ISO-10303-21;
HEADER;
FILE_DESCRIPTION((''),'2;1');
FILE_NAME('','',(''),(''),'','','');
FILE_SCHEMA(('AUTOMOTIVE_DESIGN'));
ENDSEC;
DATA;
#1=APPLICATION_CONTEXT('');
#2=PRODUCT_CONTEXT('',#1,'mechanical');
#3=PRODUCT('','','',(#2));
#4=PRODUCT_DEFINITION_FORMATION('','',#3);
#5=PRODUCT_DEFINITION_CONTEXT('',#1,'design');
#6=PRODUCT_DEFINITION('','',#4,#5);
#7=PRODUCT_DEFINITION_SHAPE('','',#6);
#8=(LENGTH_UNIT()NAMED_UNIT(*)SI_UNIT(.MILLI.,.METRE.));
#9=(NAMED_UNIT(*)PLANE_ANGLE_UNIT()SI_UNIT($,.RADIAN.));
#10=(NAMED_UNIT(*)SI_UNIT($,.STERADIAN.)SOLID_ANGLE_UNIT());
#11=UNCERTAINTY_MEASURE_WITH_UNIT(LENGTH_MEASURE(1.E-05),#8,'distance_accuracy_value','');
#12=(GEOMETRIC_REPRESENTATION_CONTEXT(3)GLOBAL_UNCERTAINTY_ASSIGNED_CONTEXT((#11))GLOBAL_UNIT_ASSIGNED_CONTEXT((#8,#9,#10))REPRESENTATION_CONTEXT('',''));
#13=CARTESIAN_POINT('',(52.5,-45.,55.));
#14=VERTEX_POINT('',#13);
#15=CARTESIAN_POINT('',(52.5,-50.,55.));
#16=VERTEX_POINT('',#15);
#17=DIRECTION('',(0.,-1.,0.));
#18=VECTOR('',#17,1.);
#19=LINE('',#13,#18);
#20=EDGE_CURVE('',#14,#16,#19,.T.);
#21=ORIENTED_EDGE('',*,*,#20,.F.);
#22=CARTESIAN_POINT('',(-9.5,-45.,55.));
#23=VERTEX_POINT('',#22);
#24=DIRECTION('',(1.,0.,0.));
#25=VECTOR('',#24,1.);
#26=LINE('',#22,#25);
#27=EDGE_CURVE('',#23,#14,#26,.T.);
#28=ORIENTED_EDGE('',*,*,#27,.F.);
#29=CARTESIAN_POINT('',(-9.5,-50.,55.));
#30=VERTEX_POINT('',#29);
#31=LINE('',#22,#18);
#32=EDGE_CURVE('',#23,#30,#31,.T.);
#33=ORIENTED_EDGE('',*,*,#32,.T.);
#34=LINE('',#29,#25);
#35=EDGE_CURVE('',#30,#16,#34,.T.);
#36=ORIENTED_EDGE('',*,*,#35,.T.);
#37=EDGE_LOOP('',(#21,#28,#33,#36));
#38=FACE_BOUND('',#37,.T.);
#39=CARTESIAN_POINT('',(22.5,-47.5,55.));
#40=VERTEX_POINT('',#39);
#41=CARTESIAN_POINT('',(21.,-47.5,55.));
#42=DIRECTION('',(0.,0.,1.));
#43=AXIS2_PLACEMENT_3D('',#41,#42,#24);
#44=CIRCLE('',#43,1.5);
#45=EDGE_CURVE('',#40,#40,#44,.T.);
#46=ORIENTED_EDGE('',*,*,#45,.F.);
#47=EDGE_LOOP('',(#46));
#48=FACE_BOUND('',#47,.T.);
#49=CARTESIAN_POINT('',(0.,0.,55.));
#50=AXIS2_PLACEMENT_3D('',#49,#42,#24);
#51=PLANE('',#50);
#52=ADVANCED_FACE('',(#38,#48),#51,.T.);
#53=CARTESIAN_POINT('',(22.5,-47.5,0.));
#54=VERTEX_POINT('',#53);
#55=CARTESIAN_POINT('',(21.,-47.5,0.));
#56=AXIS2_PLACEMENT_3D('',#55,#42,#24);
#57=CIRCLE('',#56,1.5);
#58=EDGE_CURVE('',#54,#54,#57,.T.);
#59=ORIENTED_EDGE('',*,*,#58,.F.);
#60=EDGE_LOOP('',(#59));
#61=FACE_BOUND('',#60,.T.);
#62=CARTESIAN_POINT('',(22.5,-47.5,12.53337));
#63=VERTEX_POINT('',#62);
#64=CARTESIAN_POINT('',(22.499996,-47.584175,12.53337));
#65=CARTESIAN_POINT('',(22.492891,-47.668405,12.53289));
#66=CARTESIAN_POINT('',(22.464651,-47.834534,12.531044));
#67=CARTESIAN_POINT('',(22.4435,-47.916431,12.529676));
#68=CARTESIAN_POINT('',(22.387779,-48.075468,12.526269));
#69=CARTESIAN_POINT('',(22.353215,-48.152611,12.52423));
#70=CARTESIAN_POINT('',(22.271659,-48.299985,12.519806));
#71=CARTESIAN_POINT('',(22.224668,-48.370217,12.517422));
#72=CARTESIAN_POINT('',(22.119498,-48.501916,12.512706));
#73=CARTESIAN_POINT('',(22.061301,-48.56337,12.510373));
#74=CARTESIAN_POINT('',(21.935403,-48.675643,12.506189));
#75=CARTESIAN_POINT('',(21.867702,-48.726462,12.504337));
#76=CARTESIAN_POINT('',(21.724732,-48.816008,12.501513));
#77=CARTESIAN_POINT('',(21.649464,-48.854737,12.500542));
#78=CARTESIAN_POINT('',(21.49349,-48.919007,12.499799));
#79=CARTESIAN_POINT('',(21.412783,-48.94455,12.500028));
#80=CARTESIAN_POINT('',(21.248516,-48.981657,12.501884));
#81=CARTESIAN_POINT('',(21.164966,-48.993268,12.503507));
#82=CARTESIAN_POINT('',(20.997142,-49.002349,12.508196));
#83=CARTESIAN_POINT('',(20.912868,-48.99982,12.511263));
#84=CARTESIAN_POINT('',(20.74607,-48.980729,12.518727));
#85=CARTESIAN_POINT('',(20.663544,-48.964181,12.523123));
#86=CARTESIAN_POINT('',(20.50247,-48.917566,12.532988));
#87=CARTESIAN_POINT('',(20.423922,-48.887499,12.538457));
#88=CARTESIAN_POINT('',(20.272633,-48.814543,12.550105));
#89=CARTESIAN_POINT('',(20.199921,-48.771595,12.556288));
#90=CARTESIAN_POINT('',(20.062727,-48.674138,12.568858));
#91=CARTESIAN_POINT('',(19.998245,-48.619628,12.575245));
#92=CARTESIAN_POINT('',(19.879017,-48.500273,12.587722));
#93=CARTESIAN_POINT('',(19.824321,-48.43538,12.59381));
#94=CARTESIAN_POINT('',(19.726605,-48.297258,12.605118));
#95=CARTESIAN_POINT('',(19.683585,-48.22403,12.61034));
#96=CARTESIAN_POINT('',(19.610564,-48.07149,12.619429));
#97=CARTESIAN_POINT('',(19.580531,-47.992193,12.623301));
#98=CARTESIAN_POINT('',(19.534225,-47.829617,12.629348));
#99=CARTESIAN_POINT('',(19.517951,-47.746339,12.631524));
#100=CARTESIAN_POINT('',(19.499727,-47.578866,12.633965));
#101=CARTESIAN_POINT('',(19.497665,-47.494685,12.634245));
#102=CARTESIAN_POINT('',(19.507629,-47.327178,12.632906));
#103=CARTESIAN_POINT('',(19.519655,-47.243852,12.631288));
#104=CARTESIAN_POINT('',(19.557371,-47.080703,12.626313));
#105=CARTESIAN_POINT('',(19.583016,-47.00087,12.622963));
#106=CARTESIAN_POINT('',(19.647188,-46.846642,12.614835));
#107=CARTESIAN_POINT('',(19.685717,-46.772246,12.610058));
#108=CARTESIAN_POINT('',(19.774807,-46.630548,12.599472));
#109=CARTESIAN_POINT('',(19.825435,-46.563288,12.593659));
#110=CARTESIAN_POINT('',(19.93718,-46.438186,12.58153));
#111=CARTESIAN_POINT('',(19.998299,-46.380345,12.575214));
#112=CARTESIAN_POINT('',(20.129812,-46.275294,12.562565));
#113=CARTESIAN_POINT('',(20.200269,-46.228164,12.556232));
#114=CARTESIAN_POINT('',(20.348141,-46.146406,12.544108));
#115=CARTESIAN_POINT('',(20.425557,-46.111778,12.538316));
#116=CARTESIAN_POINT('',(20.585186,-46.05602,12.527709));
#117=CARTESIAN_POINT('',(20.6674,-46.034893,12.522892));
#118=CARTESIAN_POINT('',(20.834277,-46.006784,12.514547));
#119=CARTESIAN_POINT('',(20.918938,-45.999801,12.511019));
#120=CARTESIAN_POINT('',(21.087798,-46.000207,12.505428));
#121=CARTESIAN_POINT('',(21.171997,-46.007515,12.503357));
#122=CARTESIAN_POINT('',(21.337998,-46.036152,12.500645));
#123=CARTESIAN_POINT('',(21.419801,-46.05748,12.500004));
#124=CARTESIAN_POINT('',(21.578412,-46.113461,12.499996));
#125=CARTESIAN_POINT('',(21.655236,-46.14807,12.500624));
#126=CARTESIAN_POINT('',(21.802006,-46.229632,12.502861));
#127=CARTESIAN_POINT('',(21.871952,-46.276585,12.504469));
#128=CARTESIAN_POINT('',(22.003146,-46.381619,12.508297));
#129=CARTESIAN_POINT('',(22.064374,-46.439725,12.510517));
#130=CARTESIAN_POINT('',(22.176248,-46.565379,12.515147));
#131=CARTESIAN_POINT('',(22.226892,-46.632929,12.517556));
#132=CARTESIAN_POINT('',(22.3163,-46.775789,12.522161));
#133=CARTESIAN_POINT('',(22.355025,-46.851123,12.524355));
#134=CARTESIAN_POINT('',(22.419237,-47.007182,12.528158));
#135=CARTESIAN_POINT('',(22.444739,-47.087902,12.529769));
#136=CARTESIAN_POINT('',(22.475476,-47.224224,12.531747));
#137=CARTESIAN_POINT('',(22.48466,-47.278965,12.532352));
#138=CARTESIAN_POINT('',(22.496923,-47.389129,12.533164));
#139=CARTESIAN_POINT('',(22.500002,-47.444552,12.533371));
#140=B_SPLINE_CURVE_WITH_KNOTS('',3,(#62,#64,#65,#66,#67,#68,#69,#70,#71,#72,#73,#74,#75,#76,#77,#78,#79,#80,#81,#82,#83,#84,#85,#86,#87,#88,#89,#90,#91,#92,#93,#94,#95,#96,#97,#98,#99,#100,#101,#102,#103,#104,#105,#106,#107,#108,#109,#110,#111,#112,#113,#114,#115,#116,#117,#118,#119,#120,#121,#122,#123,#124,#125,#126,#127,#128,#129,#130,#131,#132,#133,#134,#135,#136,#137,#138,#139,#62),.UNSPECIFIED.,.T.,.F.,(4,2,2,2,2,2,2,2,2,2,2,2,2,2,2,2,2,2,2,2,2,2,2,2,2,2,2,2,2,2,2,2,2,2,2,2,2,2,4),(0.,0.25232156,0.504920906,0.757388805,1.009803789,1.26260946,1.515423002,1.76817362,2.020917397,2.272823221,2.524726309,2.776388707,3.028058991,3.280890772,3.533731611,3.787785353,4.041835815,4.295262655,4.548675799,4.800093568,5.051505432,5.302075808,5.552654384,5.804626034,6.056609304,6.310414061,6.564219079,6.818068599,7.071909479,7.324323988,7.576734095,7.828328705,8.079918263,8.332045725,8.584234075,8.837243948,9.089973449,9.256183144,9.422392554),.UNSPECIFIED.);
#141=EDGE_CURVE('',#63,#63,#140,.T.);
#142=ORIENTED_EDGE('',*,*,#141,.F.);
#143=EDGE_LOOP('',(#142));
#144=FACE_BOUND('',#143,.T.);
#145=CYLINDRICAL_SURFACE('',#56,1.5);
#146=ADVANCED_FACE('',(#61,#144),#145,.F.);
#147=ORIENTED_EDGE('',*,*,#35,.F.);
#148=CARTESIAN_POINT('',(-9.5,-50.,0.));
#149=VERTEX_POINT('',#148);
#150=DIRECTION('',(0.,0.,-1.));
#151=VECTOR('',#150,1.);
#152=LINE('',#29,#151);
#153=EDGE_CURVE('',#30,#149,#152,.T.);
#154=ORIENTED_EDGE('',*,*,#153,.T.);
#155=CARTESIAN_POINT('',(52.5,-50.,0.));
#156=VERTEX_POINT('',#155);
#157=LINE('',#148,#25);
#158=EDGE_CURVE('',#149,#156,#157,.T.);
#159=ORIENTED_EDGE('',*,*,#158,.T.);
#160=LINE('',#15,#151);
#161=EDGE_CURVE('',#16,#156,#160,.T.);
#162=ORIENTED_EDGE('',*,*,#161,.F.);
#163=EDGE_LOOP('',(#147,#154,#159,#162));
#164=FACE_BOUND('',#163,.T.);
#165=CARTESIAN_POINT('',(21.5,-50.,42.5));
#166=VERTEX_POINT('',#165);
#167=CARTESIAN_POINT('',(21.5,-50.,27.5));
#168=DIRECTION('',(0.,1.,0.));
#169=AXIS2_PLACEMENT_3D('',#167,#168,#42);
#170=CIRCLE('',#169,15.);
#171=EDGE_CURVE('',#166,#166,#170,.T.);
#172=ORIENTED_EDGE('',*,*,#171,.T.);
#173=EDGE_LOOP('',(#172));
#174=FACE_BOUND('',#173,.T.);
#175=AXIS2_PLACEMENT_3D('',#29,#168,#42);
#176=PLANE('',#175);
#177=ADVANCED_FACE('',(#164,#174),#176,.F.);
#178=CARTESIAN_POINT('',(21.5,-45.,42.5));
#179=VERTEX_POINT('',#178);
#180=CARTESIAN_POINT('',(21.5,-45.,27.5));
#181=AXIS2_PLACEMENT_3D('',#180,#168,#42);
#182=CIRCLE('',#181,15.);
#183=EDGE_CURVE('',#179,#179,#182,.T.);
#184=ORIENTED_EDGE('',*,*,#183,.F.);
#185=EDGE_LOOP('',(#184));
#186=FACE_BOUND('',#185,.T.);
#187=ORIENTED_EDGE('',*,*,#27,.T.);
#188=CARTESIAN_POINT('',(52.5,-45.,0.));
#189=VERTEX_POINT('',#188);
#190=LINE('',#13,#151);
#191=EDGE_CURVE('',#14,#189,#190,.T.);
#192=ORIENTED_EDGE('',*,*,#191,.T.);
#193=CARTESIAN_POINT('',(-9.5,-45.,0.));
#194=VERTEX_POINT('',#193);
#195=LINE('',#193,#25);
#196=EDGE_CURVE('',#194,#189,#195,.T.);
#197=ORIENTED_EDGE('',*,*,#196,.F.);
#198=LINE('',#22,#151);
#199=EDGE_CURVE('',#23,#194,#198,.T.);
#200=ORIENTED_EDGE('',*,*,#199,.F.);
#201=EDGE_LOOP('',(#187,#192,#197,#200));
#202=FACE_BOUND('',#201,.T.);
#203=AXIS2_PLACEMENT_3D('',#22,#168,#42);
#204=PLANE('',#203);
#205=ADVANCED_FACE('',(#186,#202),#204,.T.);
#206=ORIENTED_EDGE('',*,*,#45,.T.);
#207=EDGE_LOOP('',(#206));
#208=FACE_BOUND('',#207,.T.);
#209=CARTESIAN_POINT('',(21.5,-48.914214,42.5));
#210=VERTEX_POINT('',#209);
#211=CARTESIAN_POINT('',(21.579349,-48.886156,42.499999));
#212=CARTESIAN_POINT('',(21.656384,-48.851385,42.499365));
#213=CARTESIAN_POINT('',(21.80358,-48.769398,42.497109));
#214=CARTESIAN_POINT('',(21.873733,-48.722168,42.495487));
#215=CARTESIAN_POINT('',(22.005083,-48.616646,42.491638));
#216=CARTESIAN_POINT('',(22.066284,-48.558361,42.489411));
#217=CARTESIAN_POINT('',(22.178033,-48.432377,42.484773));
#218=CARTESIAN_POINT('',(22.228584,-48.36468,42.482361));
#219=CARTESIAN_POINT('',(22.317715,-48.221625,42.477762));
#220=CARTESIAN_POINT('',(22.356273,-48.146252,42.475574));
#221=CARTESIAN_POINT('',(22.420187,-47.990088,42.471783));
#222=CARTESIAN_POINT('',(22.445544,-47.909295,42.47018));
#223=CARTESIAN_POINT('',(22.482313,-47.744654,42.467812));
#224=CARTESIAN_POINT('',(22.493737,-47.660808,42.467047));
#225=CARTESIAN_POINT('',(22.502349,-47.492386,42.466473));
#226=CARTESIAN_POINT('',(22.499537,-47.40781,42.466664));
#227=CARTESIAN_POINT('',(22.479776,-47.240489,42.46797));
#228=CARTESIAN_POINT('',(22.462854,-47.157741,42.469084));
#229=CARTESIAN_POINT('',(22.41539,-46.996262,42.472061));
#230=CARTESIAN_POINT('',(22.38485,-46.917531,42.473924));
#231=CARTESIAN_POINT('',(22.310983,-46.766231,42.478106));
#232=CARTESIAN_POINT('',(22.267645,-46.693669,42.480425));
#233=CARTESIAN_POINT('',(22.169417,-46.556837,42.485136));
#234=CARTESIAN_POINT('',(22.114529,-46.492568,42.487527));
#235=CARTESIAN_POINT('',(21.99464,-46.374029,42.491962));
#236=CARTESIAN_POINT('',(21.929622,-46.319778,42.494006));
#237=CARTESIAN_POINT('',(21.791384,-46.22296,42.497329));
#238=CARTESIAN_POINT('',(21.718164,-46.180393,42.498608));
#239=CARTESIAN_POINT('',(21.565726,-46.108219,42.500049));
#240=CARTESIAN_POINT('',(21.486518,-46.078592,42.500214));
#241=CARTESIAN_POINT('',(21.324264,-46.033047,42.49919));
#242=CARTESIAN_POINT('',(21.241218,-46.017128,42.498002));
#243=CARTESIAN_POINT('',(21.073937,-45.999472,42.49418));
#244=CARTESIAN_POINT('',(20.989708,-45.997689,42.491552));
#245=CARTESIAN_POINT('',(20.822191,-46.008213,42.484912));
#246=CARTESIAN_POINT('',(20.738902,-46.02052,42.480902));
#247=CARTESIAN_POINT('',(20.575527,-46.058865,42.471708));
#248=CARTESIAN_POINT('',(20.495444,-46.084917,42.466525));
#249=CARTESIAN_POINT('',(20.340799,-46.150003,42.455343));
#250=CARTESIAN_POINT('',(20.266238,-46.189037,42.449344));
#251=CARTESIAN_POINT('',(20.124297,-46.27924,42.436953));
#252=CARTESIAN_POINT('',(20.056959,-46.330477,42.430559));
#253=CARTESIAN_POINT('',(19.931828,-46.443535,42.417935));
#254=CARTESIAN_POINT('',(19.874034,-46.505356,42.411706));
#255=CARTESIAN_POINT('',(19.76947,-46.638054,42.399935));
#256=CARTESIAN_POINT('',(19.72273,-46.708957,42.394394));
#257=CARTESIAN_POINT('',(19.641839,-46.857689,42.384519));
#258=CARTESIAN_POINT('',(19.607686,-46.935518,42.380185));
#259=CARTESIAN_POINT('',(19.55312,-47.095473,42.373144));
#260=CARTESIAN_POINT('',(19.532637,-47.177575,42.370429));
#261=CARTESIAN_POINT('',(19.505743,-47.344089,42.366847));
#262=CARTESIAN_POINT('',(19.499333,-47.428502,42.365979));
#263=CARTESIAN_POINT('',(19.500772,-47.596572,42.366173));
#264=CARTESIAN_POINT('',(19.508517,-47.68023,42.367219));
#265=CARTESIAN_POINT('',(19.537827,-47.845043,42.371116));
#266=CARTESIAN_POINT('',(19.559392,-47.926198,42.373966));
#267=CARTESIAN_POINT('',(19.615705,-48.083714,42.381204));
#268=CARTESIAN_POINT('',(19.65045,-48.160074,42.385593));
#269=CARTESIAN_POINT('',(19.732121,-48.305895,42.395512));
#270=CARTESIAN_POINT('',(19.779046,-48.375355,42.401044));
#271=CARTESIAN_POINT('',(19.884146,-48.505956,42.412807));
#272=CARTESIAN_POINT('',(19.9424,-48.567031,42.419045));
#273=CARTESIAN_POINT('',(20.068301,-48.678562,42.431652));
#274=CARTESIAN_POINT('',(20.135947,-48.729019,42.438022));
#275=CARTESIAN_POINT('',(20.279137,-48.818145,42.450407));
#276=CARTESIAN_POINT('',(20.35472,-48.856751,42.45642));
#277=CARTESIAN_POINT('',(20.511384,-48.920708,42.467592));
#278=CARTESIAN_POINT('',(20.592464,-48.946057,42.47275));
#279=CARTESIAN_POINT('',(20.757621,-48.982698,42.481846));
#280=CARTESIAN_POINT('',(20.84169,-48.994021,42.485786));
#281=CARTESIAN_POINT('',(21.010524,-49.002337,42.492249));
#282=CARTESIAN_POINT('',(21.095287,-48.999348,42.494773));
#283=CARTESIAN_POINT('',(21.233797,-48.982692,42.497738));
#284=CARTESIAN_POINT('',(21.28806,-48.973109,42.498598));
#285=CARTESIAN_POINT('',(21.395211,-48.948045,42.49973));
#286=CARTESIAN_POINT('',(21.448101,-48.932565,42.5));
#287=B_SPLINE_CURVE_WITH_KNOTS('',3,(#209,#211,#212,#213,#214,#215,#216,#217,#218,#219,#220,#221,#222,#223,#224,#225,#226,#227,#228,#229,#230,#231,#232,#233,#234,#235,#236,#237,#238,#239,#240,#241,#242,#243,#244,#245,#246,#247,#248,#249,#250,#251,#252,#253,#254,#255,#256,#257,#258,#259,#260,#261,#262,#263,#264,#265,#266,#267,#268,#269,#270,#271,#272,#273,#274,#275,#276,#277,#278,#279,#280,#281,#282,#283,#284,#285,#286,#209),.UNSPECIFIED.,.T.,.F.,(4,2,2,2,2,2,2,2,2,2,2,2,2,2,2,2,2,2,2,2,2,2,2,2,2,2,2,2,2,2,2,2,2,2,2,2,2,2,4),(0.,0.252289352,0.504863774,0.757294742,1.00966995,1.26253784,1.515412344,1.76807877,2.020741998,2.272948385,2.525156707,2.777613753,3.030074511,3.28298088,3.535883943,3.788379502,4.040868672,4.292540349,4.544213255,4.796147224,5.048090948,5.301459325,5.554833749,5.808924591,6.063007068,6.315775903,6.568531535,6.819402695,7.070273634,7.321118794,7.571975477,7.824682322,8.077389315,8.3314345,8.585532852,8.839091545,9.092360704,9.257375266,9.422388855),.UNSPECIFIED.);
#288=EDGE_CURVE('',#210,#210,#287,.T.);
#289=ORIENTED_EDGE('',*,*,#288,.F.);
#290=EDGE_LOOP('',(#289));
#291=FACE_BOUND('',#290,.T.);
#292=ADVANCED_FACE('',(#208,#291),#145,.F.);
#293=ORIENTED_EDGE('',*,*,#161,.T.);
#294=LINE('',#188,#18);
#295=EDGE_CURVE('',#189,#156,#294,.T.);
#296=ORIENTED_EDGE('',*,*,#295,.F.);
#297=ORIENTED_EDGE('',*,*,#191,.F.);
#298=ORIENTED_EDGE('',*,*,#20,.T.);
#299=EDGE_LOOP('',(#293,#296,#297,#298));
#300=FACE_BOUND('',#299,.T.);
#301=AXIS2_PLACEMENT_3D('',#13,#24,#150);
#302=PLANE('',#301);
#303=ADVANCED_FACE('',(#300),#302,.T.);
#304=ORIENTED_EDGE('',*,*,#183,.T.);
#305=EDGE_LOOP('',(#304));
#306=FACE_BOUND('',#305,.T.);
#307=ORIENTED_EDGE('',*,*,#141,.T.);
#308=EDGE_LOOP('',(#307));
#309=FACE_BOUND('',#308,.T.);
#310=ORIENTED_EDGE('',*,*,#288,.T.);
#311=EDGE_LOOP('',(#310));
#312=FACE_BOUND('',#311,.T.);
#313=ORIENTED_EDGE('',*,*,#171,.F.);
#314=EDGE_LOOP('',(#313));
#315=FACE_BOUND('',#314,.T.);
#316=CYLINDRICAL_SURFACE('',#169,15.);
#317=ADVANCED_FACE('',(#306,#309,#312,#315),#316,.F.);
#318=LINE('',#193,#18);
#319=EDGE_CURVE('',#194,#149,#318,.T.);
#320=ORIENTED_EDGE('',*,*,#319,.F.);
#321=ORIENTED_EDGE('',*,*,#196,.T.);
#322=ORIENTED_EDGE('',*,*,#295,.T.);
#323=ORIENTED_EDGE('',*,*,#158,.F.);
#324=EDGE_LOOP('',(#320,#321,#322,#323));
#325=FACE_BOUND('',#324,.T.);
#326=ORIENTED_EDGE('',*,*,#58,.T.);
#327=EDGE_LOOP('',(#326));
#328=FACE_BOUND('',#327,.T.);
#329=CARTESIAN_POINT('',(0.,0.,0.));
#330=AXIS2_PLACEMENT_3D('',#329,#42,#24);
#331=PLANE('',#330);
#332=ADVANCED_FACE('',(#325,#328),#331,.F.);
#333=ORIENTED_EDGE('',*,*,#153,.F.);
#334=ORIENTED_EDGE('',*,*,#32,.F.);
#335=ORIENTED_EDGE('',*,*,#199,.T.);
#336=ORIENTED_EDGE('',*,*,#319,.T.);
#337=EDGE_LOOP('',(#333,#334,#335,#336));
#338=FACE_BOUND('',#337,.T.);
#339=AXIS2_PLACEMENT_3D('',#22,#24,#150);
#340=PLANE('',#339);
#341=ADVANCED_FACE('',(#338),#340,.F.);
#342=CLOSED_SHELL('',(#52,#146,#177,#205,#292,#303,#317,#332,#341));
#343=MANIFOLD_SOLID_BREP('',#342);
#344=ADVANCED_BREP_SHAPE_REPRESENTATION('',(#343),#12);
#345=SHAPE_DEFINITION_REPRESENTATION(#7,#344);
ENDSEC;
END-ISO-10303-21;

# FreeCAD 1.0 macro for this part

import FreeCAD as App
import Part
import Sketcher

V = App.Vector
Q = App.Units.Quantity


def add_polygon(sketch, points):
    """Adds a closed chain of lines whose ends are joined by coincident constraints."""
    first, n = sketch.GeometryCount, len(points)
    for a, b in zip(points, points[1:] + points[:1]):
        sketch.addGeometry(Part.LineSegment(App.Vector(*a, 0), App.Vector(*b, 0)), False)
    for i in range(n):
        sketch.addConstraint(Sketcher.Constraint("Coincident", first + i, 2, first + (i + 1) % n, 1))

doc = App.newDocument("Part")
body = doc.addObject("PartDesign::Body", "Body")

# Sketch on XY plane
sketch1 = body.newObject("Sketcher::SketchObject", "Sketch")
sketch1.AttachmentSupport = (doc.getObject("XY_Plane"), [""])
sketch1.MapMode = "FlatFace"
add_polygon(sketch1, [(-10, -45), (-10, -50), (52, -50), (52, -45)])  # lines 0-3
sketch1.addConstraint([
    Sketcher.Constraint("Vertical", 0),
    Sketcher.Constraint("Horizontal", 1),
    Sketcher.Constraint("Vertical", 2),
    Sketcher.Constraint("Horizontal", 3),
    Sketcher.Constraint("DistanceX", 1, 1, 1, 2, Q("62 mm")),
    Sketcher.Constraint("DistanceY", 0, 2, 0, 1, Q("5 mm")),
    Sketcher.Constraint("DistanceY", 0, 2, -1, 1, Q("50 mm")),
    Sketcher.Constraint("DistanceX", 0, 2, -1, 1, Q("9.5 mm")),
])
pad1 = body.newObject("PartDesign::Pad", "Pad")
pad1.Profile = sketch1
pad1.Length = 55

# Sketch on XZ plane
sketch2 = body.newObject("Sketcher::SketchObject", "Sketch001")
sketch2.AttachmentSupport = (doc.getObject("XZ_Plane"), [""])
sketch2.MapMode = "FlatFace"
sketch2.AttachmentOffset = App.Placement(V(0, 0, 45), App.Rotation())
sketch2.addGeometry(Part.Circle(V(22, 28, 0), V(0, 0, 1), 15), False)
sketch2.addConstraint([
    Sketcher.Constraint("Diameter", 0, Q("30 mm")),
    Sketcher.Constraint("DistanceX", -1, 1, 0, 3, Q("21.5 mm")),
    Sketcher.Constraint("DistanceY", -1, 1, 0, 3, Q("27.5 mm")),
])
pocket1 = body.newObject("PartDesign::Pocket", "Pocket")
pocket1.Profile = sketch2
pocket1.Type = "ThroughAll"
pocket1.Reversed = True

# Sketch on XY plane
sketch3 = body.newObject("Sketcher::SketchObject", "Sketch002")
sketch3.AttachmentSupport = (doc.getObject("XY_Plane"), [""])
sketch3.MapMode = "FlatFace"
sketch3.AttachmentOffset = App.Placement(V(0, 0, 55), App.Rotation())
sketch3.addGeometry(Part.Circle(V(21, -47.5, 0), V(0, 0, 1), 1.5), False)
sketch3.addConstraint([
    Sketcher.Constraint("Diameter", 0, Q("3 mm")),
    Sketcher.Constraint("DistanceX", -1, 1, 0, 3, Q("21 mm")),
    Sketcher.Constraint("DistanceY", 0, 3, -1, 1, Q("47.5 mm")),
])
pocket2 = body.newObject("PartDesign::Pocket", "Pocket001")
pocket2.Profile = sketch3
pocket2.Type = "ThroughAll"

doc.recompute()
